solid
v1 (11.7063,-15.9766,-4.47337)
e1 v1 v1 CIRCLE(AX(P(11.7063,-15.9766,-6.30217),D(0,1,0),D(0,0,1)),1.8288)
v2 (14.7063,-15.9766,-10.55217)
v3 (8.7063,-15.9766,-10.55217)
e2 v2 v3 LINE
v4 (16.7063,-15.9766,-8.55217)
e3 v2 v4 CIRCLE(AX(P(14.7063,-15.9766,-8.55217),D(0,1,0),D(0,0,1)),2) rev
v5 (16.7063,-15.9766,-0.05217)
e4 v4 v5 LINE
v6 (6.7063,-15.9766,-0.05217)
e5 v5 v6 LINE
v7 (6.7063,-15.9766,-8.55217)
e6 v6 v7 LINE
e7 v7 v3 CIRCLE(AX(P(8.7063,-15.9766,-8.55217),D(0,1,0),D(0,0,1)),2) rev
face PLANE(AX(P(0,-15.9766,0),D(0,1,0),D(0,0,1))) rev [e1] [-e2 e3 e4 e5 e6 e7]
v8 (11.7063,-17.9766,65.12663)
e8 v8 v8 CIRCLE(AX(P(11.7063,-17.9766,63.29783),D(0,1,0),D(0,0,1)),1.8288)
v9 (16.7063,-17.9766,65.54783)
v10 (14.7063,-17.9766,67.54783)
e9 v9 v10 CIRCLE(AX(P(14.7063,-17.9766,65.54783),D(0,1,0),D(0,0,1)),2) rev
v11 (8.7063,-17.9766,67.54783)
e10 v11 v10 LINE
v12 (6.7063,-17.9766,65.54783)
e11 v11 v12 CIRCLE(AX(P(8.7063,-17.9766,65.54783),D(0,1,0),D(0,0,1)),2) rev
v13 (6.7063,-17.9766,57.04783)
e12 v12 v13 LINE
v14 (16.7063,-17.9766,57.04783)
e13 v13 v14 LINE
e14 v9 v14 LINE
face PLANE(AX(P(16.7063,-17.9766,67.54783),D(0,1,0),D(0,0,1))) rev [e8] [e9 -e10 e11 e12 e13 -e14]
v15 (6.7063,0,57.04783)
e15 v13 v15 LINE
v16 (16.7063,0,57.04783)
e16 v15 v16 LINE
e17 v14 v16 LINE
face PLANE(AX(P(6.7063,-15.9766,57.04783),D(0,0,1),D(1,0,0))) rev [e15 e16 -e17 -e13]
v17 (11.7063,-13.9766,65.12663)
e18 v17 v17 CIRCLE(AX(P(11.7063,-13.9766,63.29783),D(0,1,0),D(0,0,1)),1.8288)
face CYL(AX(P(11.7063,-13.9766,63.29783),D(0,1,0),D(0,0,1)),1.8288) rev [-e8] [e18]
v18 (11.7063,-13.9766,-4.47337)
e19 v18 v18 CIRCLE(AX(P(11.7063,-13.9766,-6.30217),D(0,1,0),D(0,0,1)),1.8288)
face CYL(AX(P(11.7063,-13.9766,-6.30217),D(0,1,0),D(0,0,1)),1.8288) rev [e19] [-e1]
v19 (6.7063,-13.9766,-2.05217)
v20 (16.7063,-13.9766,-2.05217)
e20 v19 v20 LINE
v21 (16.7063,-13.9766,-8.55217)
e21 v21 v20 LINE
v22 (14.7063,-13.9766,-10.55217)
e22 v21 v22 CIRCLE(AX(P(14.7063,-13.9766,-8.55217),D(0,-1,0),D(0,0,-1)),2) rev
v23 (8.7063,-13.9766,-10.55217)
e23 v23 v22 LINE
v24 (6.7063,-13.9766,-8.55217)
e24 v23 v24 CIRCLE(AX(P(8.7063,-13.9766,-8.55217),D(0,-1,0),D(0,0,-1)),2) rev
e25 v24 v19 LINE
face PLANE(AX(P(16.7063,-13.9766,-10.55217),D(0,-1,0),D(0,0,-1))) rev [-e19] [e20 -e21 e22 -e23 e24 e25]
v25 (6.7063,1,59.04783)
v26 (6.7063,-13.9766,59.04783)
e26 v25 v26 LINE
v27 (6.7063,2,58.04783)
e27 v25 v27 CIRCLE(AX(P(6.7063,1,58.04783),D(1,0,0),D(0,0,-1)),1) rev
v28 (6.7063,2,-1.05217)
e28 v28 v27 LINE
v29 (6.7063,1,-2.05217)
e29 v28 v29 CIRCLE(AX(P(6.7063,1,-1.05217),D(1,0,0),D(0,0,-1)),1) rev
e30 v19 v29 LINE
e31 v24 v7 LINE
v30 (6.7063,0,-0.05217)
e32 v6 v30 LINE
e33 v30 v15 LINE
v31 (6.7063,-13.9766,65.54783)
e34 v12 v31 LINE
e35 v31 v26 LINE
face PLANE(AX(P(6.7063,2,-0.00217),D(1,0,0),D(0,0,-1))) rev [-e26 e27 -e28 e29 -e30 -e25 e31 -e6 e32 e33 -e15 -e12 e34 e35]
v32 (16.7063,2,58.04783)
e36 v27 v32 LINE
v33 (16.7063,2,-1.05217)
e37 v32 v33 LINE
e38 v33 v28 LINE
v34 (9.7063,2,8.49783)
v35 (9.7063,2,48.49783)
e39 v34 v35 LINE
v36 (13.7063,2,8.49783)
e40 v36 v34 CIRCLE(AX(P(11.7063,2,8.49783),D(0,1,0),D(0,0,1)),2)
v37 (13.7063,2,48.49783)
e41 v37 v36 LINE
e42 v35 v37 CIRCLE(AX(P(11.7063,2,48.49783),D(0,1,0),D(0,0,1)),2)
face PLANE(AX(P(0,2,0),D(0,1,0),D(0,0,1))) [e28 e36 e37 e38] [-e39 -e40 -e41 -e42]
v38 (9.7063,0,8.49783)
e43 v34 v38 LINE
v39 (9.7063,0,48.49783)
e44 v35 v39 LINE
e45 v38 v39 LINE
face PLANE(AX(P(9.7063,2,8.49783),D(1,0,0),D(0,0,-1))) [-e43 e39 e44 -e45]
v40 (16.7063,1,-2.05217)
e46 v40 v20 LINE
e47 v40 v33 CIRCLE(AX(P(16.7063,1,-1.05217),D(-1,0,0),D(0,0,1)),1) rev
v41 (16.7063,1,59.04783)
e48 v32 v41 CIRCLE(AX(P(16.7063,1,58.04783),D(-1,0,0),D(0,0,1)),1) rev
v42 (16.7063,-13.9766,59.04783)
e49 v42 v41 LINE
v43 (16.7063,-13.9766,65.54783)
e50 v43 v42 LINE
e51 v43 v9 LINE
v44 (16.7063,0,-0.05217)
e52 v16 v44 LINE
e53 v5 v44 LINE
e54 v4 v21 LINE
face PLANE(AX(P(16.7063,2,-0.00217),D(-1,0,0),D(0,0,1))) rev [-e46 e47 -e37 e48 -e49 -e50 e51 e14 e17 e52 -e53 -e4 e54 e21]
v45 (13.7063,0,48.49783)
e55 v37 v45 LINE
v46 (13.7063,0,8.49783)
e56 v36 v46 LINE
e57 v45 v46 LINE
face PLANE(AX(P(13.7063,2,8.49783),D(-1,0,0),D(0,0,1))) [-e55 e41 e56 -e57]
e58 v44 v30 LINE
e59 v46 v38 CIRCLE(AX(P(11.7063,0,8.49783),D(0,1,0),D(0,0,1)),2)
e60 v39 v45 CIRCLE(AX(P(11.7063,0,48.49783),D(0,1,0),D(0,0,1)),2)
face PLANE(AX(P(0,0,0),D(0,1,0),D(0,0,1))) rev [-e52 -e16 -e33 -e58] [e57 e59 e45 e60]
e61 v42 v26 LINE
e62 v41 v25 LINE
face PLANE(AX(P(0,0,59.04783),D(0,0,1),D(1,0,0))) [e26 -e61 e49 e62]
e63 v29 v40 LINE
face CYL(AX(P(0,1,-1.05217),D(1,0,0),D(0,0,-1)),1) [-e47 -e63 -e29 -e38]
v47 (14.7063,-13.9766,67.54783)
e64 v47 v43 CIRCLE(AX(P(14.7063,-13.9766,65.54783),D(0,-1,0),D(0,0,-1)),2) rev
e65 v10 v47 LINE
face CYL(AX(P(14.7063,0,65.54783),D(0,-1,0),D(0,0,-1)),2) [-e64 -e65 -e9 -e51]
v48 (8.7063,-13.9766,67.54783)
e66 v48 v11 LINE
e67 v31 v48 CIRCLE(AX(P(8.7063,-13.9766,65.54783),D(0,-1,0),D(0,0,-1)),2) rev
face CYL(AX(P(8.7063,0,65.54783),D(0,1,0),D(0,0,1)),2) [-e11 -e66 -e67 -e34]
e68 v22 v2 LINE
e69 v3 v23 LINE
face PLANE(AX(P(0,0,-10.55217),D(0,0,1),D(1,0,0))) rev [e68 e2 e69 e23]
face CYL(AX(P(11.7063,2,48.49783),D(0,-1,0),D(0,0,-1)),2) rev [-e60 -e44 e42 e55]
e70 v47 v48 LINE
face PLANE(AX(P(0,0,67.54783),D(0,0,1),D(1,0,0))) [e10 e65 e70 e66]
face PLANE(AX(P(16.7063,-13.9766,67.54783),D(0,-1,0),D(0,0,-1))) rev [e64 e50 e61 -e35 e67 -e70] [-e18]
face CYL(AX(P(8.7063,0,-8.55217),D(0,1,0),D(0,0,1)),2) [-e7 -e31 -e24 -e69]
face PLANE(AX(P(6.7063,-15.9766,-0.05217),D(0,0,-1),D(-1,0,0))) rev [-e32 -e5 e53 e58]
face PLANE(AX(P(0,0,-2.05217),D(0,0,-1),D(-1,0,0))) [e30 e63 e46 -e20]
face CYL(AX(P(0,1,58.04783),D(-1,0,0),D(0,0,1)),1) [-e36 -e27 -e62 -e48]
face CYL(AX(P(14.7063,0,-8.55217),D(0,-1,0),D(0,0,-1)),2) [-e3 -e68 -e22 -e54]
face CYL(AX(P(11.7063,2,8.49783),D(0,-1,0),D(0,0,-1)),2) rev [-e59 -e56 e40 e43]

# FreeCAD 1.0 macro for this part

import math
import FreeCAD as App
import Part
import Sketcher
Q = App.Units.Quantity


def edges_at(feature, points):
    """Names of the edges that pass closest to the given points."""
    edges = feature.Shape.Edges
    near = lambda p: min(range(len(edges)), key=lambda i: edges[i].distToShape(Part.Vertex(*p))[0])
    return sorted({f"Edge{near(p) + 1}" for p in points})

doc = App.newDocument("Part")
body = doc.addObject("PartDesign::Body", "Body")

# Sketch on XZ plane
sketch1 = doc.addObject("Sketcher::SketchObject", "Sketch")
body.addObject(sketch1)
sketch1.AttachmentSupport = (doc.XZ_Plane, [""])
sketch1.MapMode = "FlatFace"
sketch1.addGeometry([
    Part.LineSegment(App.Vector(6.7063, -0.00217, 0), App.Vector(6.7063, 56.99783, 0)),  # 0
    Part.LineSegment(App.Vector(6.7063, 56.99783, 0), App.Vector(16.7063, 56.99783, 0)),  # 1
    Part.LineSegment(App.Vector(16.7063, 56.99783, 0), App.Vector(16.7063, -0.00217, 0)),  # 2
    Part.LineSegment(App.Vector(16.7063, -0.00217, 0), App.Vector(6.7063, -0.00217, 0)),  # 3
    Part.ArcOfCircle(Part.Circle(App.Vector(11.7063, 8.49783, 0), App.Vector(0, 0, 1), 2), math.radians(180), math.radians(360)),  # 4
    Part.LineSegment(App.Vector(13.7063, 8.49783, 0), App.Vector(13.7063, 48.49783, 0)),  # 5
    Part.ArcOfCircle(Part.Circle(App.Vector(11.7063, 48.49783, 0), App.Vector(0, 0, 1), 2), math.radians(0), math.radians(180)),  # 6
    Part.LineSegment(App.Vector(9.7063, 48.49783, 0), App.Vector(9.7063, 8.49783, 0)),  # 7
], False)
sketch1.addConstraint([
    Sketcher.Constraint("Coincident", 0, 2, 1, 1),
    Sketcher.Constraint("Coincident", 1, 2, 2, 1),
    Sketcher.Constraint("Coincident", 2, 2, 3, 1),
    Sketcher.Constraint("Coincident", 3, 2, 0, 1),
    Sketcher.Constraint("Tangent", 4, 2, 5, 1),
    Sketcher.Constraint("Tangent", 5, 2, 6, 1),
    Sketcher.Constraint("Tangent", 6, 2, 7, 1),
    Sketcher.Constraint("Tangent", 7, 2, 4, 1),
    Sketcher.Constraint("Vertical", 0),
    Sketcher.Constraint("Horizontal", 1),
    Sketcher.Constraint("Vertical", 2),
    Sketcher.Constraint("Horizontal", 3),
    Sketcher.Constraint("Vertical", 5),
    Sketcher.Constraint("Vertical", 7),
    Sketcher.Constraint("Radius", 4, Q("2 mm")),
    Sketcher.Constraint("DistanceX", 1, 1, 1, 2, Q("10 mm")),
    Sketcher.Constraint("DistanceY", 0, 1, 0, 2, Q("57 mm")),
    Sketcher.Constraint("DistanceY", 5, 1, 5, 2, Q("40 mm")),
    Sketcher.Constraint("DistanceX", 0, 2, 6, 3, Q("5 mm")),
    Sketcher.Constraint("DistanceY", 6, 3, 0, 2, Q("8.5 mm")),
    Sketcher.Constraint("DistanceX", -1, 1, 4, 3, Q("11.7063 mm")),
    Sketcher.Constraint("DistanceY", -1, 1, 4, 3, Q("8.49783 mm")),
])
pad1 = doc.addObject("PartDesign::Pad", "Pad")
body.addObject(pad1)
pad1.Profile = sketch1
pad1.Length = 2
pad1.Reversed = True

# Sketch on XY plane
sketch2 = doc.addObject("Sketcher::SketchObject", "Sketch001")
body.addObject(sketch2)
sketch2.AttachmentSupport = (doc.XY_Plane, [""])
sketch2.MapMode = "FlatFace"
sketch2.AttachmentOffset = App.Placement(App.Vector(0, 0, 56.99783), App.Rotation())
sketch2.addGeometry([
    Part.LineSegment(App.Vector(6.7063, 2, 0), App.Vector(6.7063, 0, 0)),
    Part.LineSegment(App.Vector(6.7063, 0, 0), App.Vector(16.7063, 0, 0)),
    Part.LineSegment(App.Vector(16.7063, 0, 0), App.Vector(16.7063, 2, 0)),
    Part.LineSegment(App.Vector(16.7063, 2, 0), App.Vector(6.7063, 2, 0)),
], False)
sketch2.addConstraint([
    Sketcher.Constraint("Coincident", 0, 2, 1, 1),
    Sketcher.Constraint("Coincident", 1, 2, 2, 1),
    Sketcher.Constraint("Coincident", 2, 2, 3, 1),
    Sketcher.Constraint("Coincident", 3, 2, 0, 1),
    Sketcher.Constraint("Vertical", 0),
    Sketcher.Constraint("Horizontal", 1),
    Sketcher.Constraint("Vertical", 2),
    Sketcher.Constraint("Horizontal", 3),
    Sketcher.Constraint("PointOnObject", 0, 2, -1),
    Sketcher.Constraint("DistanceX", 1, 1, 1, 2, Q("10 mm")),
    Sketcher.Constraint("DistanceY", 0, 2, 0, 1, Q("2 mm")),
    Sketcher.Constraint("DistanceX", -1, 1, 0, 2, Q("6.7063 mm")),
])
pad2 = doc.addObject("PartDesign::Pad", "Pad001")
body.addObject(pad2)
pad2.Profile = sketch2
pad2.Length = 2.05

# Sketch on XZ plane
sketch3 = doc.addObject("Sketcher::SketchObject", "Sketch002")
body.addObject(sketch3)
sketch3.AttachmentSupport = (doc.XZ_Plane, [""])
sketch3.MapMode = "FlatFace"
sketch3.addGeometry([
    Part.LineSegment(App.Vector(6.7063, 59.04783, 0), App.Vector(6.7063, 57.04783, 0)),
    Part.LineSegment(App.Vector(6.7063, 57.04783, 0), App.Vector(16.7063, 57.04783, 0)),
    Part.LineSegment(App.Vector(16.7063, 57.04783, 0), App.Vector(16.7063, 59.04783, 0)),
    Part.LineSegment(App.Vector(16.7063, 59.04783, 0), App.Vector(6.7063, 59.04783, 0)),
], False)
sketch3.addConstraint([
    Sketcher.Constraint("Coincident", 0, 2, 1, 1),
    Sketcher.Constraint("Coincident", 1, 2, 2, 1),
    Sketcher.Constraint("Coincident", 2, 2, 3, 1),
    Sketcher.Constraint("Coincident", 3, 2, 0, 1),
    Sketcher.Constraint("Vertical", 0),
    Sketcher.Constraint("Horizontal", 1),
    Sketcher.Constraint("Vertical", 2),
    Sketcher.Constraint("Horizontal", 3),
    Sketcher.Constraint("DistanceX", 1, 1, 1, 2, Q("10 mm")),
    Sketcher.Constraint("DistanceY", 0, 2, 0, 1, Q("2 mm")),
    Sketcher.Constraint("DistanceX", -1, 1, 0, 2, Q("6.7063 mm")),
    Sketcher.Constraint("DistanceY", -1, 1, 0, 2, Q("57.04783 mm")),
])
pad3 = doc.addObject("PartDesign::Pad", "Pad002")
body.addObject(pad3)
pad3.Profile = sketch3
pad3.Length = 15.9766

# Sketch on XY plane
sketch4 = doc.addObject("Sketcher::SketchObject", "Sketch003")
body.addObject(sketch4)
sketch4.AttachmentSupport = (doc.XY_Plane, [""])
sketch4.MapMode = "FlatFace"
sketch4.AttachmentOffset = App.Placement(App.Vector(0, 0, 59.04783), App.Rotation())
sketch4.addGeometry([
    Part.LineSegment(App.Vector(6.7063, -13.9766, 0), App.Vector(6.7063, -17.9766, 0)),
    Part.LineSegment(App.Vector(6.7063, -17.9766, 0), App.Vector(16.7063, -17.9766, 0)),
    Part.LineSegment(App.Vector(16.7063, -17.9766, 0), App.Vector(16.7063, -13.9766, 0)),
    Part.LineSegment(App.Vector(16.7063, -13.9766, 0), App.Vector(6.7063, -13.9766, 0)),
], False)
sketch4.addConstraint([
    Sketcher.Constraint("Coincident", 0, 2, 1, 1),
    Sketcher.Constraint("Coincident", 1, 2, 2, 1),
    Sketcher.Constraint("Coincident", 2, 2, 3, 1),
    Sketcher.Constraint("Coincident", 3, 2, 0, 1),
    Sketcher.Constraint("Vertical", 0),
    Sketcher.Constraint("Horizontal", 1),
    Sketcher.Constraint("Vertical", 2),
    Sketcher.Constraint("Horizontal", 3),
    Sketcher.Constraint("DistanceX", 1, 1, 1, 2, Q("10 mm")),
    Sketcher.Constraint("DistanceY", 0, 2, 0, 1, Q("4 mm")),
    Sketcher.Constraint("DistanceX", -1, 1, 0, 2, Q("6.7063 mm")),
    Sketcher.Constraint("DistanceY", 0, 2, -1, 1, Q("17.9766 mm")),
])
pad4 = doc.addObject("PartDesign::Pad", "Pad003")
body.addObject(pad4)
pad4.Profile = sketch4
pad4.Length = 8.5

# Sketch on XY plane
sketch5 = doc.addObject("Sketcher::SketchObject", "Sketch004")
body.addObject(sketch5)
sketch5.AttachmentSupport = (doc.XY_Plane, [""])
sketch5.MapMode = "FlatFace"
sketch5.AttachmentOffset = App.Placement(App.Vector(0, 0, -0.00217), App.Rotation())
sketch5.addGeometry([
    Part.LineSegment(App.Vector(16.7063, 2, 0), App.Vector(16.7063, 0, 0)),
    Part.LineSegment(App.Vector(16.7063, 0, 0), App.Vector(6.7063, 0, 0)),
    Part.LineSegment(App.Vector(6.7063, 0, 0), App.Vector(6.7063, 2, 0)),
    Part.LineSegment(App.Vector(6.7063, 2, 0), App.Vector(16.7063, 2, 0)),
], False)
sketch5.addConstraint([
    Sketcher.Constraint("Coincident", 0, 2, 1, 1),
    Sketcher.Constraint("Coincident", 1, 2, 2, 1),
    Sketcher.Constraint("Coincident", 2, 2, 3, 1),
    Sketcher.Constraint("Coincident", 3, 2, 0, 1),
    Sketcher.Constraint("Vertical", 0),
    Sketcher.Constraint("Horizontal", 1),
    Sketcher.Constraint("Vertical", 2),
    Sketcher.Constraint("Horizontal", 3),
    Sketcher.Constraint("PointOnObject", 0, 2, -1),
    Sketcher.Constraint("DistanceX", 1, 2, 1, 1, Q("10 mm")),
    Sketcher.Constraint("DistanceY", 0, 2, 0, 1, Q("2 mm")),
    Sketcher.Constraint("DistanceX", -1, 1, 0, 2, Q("16.7063 mm")),
])
pad5 = doc.addObject("PartDesign::Pad", "Pad004")
body.addObject(pad5)
pad5.Profile = sketch5
pad5.Length = 2.05
pad5.Reversed = True

# Sketch on XZ plane
sketch6 = doc.addObject("Sketcher::SketchObject", "Sketch005")
body.addObject(sketch6)
sketch6.AttachmentSupport = (doc.XZ_Plane, [""])
sketch6.MapMode = "FlatFace"
sketch6.addGeometry([
    Part.LineSegment(App.Vector(6.7063, -0.05217, 0), App.Vector(6.7063, -2.05217, 0)),
    Part.LineSegment(App.Vector(6.7063, -2.05217, 0), App.Vector(16.7063, -2.05217, 0)),
    Part.LineSegment(App.Vector(16.7063, -2.05217, 0), App.Vector(16.7063, -0.05217, 0)),
    Part.LineSegment(App.Vector(16.7063, -0.05217, 0), App.Vector(6.7063, -0.05217, 0)),
], False)
sketch6.addConstraint([
    Sketcher.Constraint("Coincident", 0, 2, 1, 1),
    Sketcher.Constraint("Coincident", 1, 2, 2, 1),
    Sketcher.Constraint("Coincident", 2, 2, 3, 1),
    Sketcher.Constraint("Coincident", 3, 2, 0, 1),
    Sketcher.Constraint("Vertical", 0),
    Sketcher.Constraint("Horizontal", 1),
    Sketcher.Constraint("Vertical", 2),
    Sketcher.Constraint("Horizontal", 3),
    Sketcher.Constraint("DistanceX", 1, 1, 1, 2, Q("10 mm")),
    Sketcher.Constraint("DistanceY", 0, 2, 0, 1, Q("2 mm")),
    Sketcher.Constraint("DistanceX", -1, 1, 0, 2, Q("6.7063 mm")),
    Sketcher.Constraint("DistanceY", 0, 2, -1, 1, Q("2.05217 mm")),
])
pad6 = doc.addObject("PartDesign::Pad", "Pad005")
body.addObject(pad6)
pad6.Profile = sketch6
pad6.Length = 15.9766

# Sketch on XY plane
sketch7 = doc.addObject("Sketcher::SketchObject", "Sketch006")
body.addObject(sketch7)
sketch7.AttachmentSupport = (doc.XY_Plane, [""])
sketch7.MapMode = "FlatFace"
sketch7.AttachmentOffset = App.Placement(App.Vector(0, 0, -2.05217), App.Rotation())
sketch7.addGeometry([
    Part.LineSegment(App.Vector(16.7063, -13.9766, 0), App.Vector(16.7063, -15.9766, 0)),
    Part.LineSegment(App.Vector(16.7063, -15.9766, 0), App.Vector(6.7063, -15.9766, 0)),
    Part.LineSegment(App.Vector(6.7063, -15.9766, 0), App.Vector(6.7063, -13.9766, 0)),
    Part.LineSegment(App.Vector(6.7063, -13.9766, 0), App.Vector(16.7063, -13.9766, 0)),
], False)
sketch7.addConstraint([
    Sketcher.Constraint("Coincident", 0, 2, 1, 1),
    Sketcher.Constraint("Coincident", 1, 2, 2, 1),
    Sketcher.Constraint("Coincident", 2, 2, 3, 1),
    Sketcher.Constraint("Coincident", 3, 2, 0, 1),
    Sketcher.Constraint("Vertical", 0),
    Sketcher.Constraint("Horizontal", 1),
    Sketcher.Constraint("Vertical", 2),
    Sketcher.Constraint("Horizontal", 3),
    Sketcher.Constraint("DistanceX", 1, 2, 1, 1, Q("10 mm")),
    Sketcher.Constraint("DistanceY", 0, 2, 0, 1, Q("2 mm")),
    Sketcher.Constraint("DistanceX", -1, 1, 0, 2, Q("16.7063 mm")),
    Sketcher.Constraint("DistanceY", 0, 2, -1, 1, Q("15.9766 mm")),
])
pad7 = doc.addObject("PartDesign::Pad", "Pad006")
body.addObject(pad7)
pad7.Profile = sketch7
pad7.Length = 8.5
pad7.Reversed = True

# Sketch on XZ plane
sketch8 = doc.addObject("Sketcher::SketchObject", "Sketch007")
body.addObject(sketch8)
sketch8.AttachmentSupport = (doc.XZ_Plane, [""])
sketch8.MapMode = "FlatFace"
sketch8.AttachmentOffset = App.Placement(App.Vector(0, 0, 13.9766), App.Rotation())
sketch8.addGeometry([
    Part.Circle(App.Vector(11.7063, 63.29783, 0), App.Vector(0, 0, 1), 1.8288),
    Part.Circle(App.Vector(11.7063, -6.30217, 0), App.Vector(0, 0, 1), 1.8288),
], False)
sketch8.addConstraint([
    Sketcher.Constraint("Equal", 0, 1),
    Sketcher.Constraint("Vertical", 0, 3, 1, 3),
    Sketcher.Constraint("Diameter", 0, Q("3.6576 mm")),
    Sketcher.Constraint("DistanceY", 1, 3, 0, 3, Q("69.6 mm")),
    Sketcher.Constraint("DistanceX", -1, 1, 0, 3, Q("11.7063 mm")),
    Sketcher.Constraint("DistanceY", -1, 1, 0, 3, Q("63.29783 mm")),
])
doc.recompute()
hole = doc.addObject("PartDesign::Hole", "Hole")
body.addObject(hole)
hole.Profile = sketch8
hole.ThreadType = "None"
hole.Diameter = 3.6576
hole.DepthType = "Dimension"
hole.Depth = 7.62
hole.DrillPoint = "Angled"
hole.DrillPointAngle = 118
hole.Reversed = True
doc.recompute()

fillet = doc.addObject("PartDesign::Fillet", "Fillet")
body.addObject(fillet)
fillet.Base = (hole, edges_at(hole, [(11.706, 2, 59.048), (11.706, 2, -2.052)]))
fillet.Radius = 1
doc.recompute()

fillet2 = doc.addObject("PartDesign::Fillet", "Fillet001")
body.addObject(fillet2)
fillet2.Base = (fillet, edges_at(fillet, [
    (16.706, -15.977, 67.548),
    (6.706, -15.977, 67.548),
    (16.706, -14.977, -10.552),
    (6.706, -14.977, -10.552),
]))
fillet2.Radius = 2

# Sketch on XY plane
sketch9 = doc.addObject("Sketcher::SketchObject", "Sketch008")
body.addObject(sketch9)
sketch9.AttachmentSupport = (doc.XY_Plane, [""])
sketch9.MapMode = "FlatFace"
sketch9.AttachmentOffset = App.Placement(App.Vector(0, 0, 59.04783), App.Rotation())
sketch9.addGeometry([
    Part.LineSegment(App.Vector(16.7063, -15.9766, 0), App.Vector(16.7063, -17.9766, 0)),
    Part.LineSegment(App.Vector(16.7063, -17.9766, 0), App.Vector(6.7063, -17.9766, 0)),
    Part.LineSegment(App.Vector(6.7063, -17.9766, 0), App.Vector(6.7063, -15.9766, 0)),
    Part.LineSegment(App.Vector(6.7063, -15.9766, 0), App.Vector(16.7063, -15.9766, 0)),
], False)
sketch9.addConstraint([
    Sketcher.Constraint("Coincident", 0, 2, 1, 1),
    Sketcher.Constraint("Coincident", 1, 2, 2, 1),
    Sketcher.Constraint("Coincident", 2, 2, 3, 1),
    Sketcher.Constraint("Coincident", 3, 2, 0, 1),
    Sketcher.Constraint("Vertical", 0),
    Sketcher.Constraint("Horizontal", 1),
    Sketcher.Constraint("Vertical", 2),
    Sketcher.Constraint("Horizontal", 3),
    Sketcher.Constraint("DistanceX", 1, 2, 1, 1, Q("10 mm")),
    Sketcher.Constraint("DistanceY", 0, 2, 0, 1, Q("2 mm")),
    Sketcher.Constraint("DistanceX", -1, 1, 0, 2, Q("16.7063 mm")),
    Sketcher.Constraint("DistanceY", 0, 2, -1, 1, Q("17.9766 mm")),
])
pad8 = doc.addObject("PartDesign::Pad", "Pad007")
body.addObject(pad8)
pad8.Profile = sketch9
pad8.Length = 2
pad8.Reversed = True

doc.recompute()
